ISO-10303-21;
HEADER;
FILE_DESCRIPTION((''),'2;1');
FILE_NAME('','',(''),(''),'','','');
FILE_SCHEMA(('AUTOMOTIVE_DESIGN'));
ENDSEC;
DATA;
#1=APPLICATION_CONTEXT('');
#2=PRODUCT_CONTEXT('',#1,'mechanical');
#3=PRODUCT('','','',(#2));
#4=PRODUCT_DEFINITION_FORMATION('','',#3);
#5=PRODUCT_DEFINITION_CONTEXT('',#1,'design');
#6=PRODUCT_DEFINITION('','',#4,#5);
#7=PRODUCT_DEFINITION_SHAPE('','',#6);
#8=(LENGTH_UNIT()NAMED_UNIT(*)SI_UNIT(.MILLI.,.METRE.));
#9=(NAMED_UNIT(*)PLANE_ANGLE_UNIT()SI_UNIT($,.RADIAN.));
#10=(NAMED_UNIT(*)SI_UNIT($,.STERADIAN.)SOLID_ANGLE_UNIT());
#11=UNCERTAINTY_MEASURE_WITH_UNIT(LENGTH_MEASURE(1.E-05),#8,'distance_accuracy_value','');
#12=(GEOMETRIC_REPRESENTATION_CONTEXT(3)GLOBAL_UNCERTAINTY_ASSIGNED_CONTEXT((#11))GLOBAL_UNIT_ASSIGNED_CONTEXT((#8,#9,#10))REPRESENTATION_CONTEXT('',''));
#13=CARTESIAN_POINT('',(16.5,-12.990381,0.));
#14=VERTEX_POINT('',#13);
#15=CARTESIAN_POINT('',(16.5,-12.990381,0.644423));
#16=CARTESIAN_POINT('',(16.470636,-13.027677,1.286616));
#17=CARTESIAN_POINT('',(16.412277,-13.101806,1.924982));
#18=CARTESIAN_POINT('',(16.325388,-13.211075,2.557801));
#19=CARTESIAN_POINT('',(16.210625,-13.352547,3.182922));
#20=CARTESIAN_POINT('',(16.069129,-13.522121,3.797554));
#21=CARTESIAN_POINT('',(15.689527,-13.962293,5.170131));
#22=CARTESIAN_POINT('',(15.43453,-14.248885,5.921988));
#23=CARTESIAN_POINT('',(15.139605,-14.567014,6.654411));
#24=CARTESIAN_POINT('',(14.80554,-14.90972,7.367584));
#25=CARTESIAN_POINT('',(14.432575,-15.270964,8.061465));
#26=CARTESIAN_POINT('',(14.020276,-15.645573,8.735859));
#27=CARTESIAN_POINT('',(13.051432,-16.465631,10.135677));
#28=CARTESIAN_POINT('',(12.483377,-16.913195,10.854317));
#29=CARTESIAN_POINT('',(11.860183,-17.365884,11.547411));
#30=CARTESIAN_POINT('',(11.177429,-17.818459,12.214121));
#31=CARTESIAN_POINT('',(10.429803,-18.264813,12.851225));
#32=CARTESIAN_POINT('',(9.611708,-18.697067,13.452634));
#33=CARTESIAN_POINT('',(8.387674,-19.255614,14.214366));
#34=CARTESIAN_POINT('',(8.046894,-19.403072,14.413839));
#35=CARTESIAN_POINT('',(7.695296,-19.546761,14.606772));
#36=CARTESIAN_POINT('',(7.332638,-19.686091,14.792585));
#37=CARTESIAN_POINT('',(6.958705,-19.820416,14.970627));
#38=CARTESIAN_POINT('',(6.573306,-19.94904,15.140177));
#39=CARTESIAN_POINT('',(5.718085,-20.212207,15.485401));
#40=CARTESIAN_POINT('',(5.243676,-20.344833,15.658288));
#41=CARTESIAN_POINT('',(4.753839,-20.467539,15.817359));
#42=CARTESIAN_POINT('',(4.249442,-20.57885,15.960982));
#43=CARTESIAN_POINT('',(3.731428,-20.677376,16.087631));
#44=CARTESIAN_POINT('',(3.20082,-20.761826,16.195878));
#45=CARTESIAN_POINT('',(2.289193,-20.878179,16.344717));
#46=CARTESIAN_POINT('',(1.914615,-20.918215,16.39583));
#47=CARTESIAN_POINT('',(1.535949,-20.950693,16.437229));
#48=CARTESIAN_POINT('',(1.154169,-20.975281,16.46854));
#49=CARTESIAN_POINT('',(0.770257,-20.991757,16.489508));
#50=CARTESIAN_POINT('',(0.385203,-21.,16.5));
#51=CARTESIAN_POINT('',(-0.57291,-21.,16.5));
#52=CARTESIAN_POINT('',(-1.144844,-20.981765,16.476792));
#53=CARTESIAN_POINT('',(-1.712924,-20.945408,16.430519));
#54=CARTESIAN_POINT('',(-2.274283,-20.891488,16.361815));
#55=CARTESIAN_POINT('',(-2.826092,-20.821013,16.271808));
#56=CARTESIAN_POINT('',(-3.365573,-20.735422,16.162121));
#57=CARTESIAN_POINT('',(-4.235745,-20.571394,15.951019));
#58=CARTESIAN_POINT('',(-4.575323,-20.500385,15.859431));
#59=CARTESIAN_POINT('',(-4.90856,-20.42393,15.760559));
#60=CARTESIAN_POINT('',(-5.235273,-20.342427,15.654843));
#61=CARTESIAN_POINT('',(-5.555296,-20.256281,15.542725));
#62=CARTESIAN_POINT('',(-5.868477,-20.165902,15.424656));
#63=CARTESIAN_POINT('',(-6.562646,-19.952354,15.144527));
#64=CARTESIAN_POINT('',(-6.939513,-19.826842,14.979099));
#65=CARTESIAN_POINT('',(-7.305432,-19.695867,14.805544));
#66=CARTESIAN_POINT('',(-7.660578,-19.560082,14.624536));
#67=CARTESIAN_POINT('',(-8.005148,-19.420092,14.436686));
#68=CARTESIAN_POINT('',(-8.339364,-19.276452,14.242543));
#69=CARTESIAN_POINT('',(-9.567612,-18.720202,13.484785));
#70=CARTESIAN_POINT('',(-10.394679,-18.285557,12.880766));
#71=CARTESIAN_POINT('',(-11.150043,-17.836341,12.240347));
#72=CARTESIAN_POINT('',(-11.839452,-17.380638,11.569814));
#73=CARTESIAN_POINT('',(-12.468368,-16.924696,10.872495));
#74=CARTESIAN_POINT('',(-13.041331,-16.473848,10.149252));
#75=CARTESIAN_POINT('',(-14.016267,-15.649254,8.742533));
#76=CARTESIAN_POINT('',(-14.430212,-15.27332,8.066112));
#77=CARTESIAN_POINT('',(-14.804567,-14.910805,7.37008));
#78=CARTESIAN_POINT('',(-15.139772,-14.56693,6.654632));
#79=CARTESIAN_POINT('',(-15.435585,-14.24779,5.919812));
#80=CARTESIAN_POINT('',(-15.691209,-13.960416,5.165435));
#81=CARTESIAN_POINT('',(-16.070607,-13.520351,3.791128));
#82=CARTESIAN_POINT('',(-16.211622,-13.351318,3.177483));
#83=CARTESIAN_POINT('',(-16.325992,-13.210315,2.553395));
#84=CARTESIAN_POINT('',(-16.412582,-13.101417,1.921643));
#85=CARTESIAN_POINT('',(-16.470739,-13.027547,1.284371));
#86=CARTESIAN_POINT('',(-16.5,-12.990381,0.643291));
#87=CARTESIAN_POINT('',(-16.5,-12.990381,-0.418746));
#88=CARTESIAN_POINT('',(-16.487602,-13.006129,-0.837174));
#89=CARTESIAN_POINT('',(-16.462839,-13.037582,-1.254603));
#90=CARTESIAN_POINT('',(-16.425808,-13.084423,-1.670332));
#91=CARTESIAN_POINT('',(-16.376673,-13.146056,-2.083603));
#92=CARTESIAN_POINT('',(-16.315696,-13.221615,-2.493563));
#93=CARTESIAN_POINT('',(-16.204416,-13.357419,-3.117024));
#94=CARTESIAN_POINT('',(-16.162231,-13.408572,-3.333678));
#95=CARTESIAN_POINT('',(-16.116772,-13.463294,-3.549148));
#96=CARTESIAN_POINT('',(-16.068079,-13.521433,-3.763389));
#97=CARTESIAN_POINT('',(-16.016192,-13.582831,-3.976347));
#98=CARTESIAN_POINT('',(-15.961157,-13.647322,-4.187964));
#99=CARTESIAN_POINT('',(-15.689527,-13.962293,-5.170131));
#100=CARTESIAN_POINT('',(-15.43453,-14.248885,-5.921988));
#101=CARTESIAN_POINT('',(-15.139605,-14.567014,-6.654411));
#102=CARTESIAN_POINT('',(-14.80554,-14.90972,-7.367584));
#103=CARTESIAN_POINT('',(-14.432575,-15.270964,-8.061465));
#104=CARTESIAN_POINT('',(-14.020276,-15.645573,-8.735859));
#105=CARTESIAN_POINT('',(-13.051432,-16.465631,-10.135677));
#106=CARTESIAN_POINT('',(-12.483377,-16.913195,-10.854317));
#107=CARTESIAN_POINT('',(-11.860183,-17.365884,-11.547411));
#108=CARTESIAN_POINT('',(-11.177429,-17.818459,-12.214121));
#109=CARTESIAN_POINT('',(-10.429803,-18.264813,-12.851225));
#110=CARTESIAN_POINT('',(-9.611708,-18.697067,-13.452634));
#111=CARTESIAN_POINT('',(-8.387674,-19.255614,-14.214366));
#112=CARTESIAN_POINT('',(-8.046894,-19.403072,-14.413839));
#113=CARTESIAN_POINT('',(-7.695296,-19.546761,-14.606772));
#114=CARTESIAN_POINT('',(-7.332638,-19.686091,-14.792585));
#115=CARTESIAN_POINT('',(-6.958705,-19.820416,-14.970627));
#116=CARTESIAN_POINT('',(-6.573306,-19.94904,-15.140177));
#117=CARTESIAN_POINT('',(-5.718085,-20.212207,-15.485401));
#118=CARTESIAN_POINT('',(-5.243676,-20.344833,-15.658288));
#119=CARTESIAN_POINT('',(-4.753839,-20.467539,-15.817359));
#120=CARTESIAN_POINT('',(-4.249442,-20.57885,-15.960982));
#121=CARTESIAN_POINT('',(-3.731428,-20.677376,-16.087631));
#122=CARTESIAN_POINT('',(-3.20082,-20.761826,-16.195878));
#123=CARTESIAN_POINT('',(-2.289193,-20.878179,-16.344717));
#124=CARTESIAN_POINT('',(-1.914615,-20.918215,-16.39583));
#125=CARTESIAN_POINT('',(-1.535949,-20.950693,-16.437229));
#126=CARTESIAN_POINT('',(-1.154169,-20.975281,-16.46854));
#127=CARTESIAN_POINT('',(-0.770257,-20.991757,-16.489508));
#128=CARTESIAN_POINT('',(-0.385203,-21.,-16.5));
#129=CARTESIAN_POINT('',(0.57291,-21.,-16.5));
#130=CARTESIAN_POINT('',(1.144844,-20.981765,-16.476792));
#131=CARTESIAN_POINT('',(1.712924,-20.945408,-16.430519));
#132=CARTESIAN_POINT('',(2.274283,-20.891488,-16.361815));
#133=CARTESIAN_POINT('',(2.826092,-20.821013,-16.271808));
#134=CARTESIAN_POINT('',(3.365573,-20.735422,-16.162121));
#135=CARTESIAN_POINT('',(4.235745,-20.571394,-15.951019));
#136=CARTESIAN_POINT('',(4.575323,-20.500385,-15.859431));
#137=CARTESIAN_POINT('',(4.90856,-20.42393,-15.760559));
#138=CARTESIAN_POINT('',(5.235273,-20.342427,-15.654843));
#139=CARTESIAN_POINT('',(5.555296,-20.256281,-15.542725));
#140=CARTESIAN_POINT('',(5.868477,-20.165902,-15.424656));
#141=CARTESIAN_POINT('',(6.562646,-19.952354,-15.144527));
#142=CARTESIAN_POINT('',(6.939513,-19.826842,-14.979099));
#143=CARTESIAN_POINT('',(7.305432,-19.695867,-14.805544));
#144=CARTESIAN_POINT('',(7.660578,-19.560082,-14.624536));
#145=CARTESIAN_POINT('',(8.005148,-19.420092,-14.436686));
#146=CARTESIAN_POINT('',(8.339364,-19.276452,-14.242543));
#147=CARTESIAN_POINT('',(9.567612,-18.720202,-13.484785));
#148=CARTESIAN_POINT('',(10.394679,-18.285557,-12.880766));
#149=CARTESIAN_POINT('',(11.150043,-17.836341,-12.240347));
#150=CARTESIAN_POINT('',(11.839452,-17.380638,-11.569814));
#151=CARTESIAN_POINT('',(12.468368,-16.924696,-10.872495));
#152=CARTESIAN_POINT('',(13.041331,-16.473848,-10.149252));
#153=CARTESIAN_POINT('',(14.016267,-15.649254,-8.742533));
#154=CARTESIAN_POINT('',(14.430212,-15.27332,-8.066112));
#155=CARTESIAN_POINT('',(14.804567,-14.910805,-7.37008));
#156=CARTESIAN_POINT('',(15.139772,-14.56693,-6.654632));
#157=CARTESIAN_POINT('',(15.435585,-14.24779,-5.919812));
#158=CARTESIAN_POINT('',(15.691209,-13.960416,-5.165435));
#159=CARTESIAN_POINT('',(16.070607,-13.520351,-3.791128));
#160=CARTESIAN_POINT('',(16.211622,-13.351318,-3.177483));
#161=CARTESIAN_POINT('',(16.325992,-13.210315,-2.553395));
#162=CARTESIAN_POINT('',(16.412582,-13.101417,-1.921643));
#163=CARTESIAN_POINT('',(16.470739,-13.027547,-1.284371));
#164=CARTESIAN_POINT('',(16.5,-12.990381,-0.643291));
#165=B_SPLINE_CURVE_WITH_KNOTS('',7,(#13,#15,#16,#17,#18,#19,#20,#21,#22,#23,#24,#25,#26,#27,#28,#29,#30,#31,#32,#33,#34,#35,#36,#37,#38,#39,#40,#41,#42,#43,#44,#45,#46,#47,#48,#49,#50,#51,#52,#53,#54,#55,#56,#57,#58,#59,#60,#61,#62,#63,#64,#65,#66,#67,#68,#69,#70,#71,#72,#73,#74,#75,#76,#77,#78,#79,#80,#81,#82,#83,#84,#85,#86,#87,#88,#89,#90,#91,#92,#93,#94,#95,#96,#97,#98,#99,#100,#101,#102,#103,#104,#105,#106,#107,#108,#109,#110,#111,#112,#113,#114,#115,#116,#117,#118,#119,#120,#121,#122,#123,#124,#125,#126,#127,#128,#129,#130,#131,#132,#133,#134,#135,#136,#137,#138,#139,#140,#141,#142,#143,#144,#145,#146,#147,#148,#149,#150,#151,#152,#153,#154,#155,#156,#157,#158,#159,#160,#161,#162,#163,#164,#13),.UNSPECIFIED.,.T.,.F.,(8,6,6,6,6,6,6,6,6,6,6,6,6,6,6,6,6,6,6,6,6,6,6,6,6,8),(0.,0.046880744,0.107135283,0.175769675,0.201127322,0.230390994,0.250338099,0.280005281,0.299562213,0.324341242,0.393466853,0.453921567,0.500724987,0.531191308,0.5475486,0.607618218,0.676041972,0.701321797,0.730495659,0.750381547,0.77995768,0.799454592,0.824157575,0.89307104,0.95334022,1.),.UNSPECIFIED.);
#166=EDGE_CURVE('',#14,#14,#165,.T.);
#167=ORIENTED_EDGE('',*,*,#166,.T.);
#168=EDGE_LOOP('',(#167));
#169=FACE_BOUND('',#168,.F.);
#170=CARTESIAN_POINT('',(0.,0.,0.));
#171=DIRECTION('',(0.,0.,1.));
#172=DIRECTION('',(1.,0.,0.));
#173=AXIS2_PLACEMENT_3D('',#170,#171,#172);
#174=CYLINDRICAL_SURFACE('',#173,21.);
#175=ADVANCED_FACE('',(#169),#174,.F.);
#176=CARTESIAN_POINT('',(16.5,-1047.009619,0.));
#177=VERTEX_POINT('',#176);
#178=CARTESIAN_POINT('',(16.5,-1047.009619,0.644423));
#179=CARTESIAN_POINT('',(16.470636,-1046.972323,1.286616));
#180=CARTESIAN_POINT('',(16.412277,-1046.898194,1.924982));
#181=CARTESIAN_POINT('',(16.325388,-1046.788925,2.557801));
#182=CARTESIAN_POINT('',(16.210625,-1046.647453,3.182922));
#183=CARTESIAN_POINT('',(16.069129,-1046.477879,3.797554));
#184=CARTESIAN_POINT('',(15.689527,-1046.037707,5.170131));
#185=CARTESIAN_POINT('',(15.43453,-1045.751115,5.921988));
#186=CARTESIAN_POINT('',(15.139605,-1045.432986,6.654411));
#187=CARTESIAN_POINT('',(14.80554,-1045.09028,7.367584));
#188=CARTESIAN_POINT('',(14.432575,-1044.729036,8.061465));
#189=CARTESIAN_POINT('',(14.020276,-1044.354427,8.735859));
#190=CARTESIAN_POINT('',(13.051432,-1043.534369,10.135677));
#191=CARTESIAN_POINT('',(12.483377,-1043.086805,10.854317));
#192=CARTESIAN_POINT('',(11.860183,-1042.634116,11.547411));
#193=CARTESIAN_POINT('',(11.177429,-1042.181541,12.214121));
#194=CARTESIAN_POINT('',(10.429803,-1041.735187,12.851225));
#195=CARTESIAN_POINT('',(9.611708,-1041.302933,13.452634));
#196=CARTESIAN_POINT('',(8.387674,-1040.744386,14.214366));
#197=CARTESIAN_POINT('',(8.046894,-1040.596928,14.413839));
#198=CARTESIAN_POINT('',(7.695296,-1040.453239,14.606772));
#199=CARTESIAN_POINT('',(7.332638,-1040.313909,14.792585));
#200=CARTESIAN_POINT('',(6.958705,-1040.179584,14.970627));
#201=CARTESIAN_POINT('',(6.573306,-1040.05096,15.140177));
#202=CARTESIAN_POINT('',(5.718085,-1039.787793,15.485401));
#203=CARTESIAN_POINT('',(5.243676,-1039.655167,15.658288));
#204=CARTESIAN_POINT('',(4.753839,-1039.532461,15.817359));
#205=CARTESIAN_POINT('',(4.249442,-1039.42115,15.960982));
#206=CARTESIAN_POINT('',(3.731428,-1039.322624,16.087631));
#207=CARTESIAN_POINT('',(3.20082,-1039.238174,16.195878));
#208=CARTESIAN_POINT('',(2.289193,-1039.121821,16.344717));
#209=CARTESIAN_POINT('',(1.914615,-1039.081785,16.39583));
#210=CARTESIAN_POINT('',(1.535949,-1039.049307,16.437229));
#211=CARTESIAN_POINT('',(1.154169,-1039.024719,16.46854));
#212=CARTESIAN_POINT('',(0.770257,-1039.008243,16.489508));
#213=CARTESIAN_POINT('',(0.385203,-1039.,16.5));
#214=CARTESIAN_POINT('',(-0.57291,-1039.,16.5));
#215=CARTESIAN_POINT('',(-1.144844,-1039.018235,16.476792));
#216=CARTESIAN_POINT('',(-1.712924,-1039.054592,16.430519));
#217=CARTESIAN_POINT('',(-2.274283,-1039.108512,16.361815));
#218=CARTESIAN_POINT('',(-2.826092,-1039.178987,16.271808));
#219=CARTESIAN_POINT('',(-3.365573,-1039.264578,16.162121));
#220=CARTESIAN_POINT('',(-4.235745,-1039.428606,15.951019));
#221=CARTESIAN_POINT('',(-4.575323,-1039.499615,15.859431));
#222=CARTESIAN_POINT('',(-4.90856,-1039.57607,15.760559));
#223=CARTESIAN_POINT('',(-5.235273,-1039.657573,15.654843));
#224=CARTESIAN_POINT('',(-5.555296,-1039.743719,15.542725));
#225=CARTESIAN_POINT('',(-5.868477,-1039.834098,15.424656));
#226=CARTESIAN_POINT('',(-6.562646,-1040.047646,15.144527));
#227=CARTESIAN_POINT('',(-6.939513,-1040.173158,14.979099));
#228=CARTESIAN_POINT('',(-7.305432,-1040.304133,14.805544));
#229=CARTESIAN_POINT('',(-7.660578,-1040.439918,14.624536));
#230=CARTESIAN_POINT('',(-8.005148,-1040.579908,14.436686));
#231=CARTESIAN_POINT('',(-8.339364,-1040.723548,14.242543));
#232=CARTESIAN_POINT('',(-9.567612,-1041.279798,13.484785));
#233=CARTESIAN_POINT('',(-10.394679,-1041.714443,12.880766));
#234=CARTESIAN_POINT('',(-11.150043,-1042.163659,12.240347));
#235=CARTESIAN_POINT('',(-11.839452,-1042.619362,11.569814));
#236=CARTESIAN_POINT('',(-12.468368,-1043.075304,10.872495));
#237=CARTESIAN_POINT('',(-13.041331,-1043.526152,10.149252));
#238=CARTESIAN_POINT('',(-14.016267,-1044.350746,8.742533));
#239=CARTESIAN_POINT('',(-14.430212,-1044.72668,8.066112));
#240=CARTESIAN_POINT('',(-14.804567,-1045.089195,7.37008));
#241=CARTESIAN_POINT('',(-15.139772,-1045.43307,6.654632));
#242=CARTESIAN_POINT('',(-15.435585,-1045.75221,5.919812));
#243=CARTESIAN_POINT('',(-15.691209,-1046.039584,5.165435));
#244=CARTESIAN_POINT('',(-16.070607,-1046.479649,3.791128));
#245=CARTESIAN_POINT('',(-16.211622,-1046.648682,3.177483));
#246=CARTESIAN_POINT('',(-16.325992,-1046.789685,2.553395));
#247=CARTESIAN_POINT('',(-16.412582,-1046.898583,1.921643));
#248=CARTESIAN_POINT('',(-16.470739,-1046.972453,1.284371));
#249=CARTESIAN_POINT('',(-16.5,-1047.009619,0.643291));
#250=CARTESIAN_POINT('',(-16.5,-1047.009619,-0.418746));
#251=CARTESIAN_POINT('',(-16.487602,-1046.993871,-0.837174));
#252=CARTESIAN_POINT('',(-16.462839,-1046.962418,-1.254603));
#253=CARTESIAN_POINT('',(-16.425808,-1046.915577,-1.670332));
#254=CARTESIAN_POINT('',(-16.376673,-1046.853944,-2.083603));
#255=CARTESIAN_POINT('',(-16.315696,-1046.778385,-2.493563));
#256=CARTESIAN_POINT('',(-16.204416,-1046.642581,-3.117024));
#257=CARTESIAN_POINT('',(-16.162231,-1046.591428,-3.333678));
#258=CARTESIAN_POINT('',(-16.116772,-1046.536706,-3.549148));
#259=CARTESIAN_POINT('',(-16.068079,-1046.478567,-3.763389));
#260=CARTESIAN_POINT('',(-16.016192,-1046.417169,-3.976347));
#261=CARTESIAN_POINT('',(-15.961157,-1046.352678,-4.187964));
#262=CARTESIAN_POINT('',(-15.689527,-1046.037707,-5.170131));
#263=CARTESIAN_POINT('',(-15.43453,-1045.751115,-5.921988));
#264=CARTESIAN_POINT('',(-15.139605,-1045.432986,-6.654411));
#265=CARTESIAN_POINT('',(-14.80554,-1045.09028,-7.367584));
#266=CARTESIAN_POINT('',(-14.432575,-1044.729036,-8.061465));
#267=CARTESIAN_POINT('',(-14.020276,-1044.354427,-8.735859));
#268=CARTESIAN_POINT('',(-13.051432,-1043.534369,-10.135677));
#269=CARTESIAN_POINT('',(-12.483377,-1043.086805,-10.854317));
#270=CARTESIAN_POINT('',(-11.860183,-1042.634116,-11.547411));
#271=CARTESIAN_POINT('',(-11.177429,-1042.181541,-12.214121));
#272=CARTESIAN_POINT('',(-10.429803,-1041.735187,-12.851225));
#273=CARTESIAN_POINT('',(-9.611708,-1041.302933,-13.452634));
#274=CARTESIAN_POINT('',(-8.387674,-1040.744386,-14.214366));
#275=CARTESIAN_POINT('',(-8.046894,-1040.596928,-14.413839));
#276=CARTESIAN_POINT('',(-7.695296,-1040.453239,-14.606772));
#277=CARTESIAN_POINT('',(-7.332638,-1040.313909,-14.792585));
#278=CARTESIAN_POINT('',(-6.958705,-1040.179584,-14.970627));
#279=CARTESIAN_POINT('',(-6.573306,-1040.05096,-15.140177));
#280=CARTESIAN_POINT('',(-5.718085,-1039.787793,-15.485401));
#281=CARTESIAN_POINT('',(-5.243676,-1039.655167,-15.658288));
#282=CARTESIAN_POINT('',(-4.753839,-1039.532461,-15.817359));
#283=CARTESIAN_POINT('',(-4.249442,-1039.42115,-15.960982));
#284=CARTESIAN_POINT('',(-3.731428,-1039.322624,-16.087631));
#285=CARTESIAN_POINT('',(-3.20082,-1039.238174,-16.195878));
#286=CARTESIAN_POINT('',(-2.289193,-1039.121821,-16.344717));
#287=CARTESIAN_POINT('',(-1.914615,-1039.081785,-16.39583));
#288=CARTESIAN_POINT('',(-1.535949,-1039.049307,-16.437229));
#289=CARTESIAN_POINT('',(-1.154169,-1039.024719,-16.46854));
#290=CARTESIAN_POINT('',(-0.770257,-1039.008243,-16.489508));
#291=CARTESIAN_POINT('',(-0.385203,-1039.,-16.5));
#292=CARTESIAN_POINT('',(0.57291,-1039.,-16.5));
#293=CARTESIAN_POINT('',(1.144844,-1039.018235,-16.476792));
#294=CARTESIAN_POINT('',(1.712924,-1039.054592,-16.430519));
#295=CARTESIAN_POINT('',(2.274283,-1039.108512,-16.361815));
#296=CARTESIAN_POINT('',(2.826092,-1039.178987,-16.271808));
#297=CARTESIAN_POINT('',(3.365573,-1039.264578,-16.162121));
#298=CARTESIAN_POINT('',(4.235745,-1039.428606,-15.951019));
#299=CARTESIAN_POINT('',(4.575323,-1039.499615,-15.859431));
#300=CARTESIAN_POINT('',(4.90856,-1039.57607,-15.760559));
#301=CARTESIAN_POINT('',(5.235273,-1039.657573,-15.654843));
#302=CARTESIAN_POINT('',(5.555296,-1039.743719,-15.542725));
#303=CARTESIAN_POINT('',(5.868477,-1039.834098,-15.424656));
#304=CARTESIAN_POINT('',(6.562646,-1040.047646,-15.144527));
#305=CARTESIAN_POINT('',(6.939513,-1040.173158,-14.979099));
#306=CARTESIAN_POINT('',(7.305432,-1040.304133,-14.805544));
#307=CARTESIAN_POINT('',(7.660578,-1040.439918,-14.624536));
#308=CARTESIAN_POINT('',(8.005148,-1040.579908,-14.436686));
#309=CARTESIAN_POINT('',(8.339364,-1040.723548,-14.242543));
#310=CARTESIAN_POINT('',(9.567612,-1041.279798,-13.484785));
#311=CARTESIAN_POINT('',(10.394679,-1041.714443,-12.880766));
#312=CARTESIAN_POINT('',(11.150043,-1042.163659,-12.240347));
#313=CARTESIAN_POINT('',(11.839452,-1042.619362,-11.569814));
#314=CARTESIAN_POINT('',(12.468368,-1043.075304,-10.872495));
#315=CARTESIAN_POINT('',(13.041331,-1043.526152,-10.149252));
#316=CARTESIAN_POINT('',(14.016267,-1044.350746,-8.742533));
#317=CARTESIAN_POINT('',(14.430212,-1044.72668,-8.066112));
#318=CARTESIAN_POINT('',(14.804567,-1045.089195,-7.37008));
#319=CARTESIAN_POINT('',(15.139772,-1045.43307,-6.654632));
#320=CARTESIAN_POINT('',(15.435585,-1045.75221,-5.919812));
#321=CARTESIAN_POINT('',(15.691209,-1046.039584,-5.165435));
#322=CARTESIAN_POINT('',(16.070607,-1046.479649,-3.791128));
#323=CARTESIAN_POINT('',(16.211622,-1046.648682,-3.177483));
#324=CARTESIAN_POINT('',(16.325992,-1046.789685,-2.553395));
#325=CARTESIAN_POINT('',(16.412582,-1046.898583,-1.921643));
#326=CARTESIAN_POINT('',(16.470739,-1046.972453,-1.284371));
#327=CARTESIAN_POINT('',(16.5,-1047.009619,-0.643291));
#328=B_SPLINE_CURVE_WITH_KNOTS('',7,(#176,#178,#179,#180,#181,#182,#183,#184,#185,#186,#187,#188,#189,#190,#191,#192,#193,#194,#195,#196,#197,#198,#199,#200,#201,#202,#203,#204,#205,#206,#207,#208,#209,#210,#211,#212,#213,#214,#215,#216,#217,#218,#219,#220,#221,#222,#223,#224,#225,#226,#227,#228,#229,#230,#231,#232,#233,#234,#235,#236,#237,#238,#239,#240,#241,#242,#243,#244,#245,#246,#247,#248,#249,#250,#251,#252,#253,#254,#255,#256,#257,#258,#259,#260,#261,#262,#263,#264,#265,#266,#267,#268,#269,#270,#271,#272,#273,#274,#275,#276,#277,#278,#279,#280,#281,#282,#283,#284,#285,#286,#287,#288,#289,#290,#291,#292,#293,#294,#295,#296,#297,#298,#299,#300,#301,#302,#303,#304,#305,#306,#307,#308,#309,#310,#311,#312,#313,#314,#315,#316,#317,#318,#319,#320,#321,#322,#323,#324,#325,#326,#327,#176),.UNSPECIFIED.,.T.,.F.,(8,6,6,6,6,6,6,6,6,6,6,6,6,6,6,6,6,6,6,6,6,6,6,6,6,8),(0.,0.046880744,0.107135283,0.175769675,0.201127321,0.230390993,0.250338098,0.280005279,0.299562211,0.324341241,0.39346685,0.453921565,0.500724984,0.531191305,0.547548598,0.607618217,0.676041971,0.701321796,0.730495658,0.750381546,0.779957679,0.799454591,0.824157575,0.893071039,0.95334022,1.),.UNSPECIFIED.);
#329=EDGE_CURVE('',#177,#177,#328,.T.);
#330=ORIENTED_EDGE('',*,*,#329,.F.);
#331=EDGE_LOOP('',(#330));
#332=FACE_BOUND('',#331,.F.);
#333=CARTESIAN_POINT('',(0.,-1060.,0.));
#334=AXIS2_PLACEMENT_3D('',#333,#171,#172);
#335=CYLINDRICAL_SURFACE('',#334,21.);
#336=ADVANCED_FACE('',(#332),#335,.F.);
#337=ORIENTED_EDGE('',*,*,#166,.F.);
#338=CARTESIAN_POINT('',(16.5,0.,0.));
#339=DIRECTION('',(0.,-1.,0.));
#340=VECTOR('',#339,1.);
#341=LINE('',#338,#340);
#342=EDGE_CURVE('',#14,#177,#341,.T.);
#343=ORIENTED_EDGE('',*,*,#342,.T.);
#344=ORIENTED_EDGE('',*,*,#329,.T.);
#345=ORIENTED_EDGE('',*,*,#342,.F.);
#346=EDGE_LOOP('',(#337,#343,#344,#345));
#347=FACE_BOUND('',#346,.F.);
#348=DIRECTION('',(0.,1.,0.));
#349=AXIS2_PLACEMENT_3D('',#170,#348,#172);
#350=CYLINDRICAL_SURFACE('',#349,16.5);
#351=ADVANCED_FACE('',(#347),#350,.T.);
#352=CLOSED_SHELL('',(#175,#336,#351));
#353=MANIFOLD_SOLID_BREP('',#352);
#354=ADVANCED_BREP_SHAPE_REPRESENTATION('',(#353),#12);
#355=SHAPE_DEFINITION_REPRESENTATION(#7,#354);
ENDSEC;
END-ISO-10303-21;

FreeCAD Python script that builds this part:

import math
import FreeCAD as App
import Part
import Sketcher

V = App.Vector

doc = App.newDocument("Part")
body = doc.addObject("PartDesign::Body", "Body")

sketch1 = body.newObject("Sketcher::SketchObject", "Sketch")
sketch1.AttachmentSupport = (doc.getObject("XZ_Plane"), [""])
sketch1.MapMode = "FlatFace"
sketch1.addGeometry(Part.Circle(V(0, 0, 0), V(0, 0, 1), 16), False)
sketch1.addConstraint([
    Sketcher.Constraint("Coincident", 0, 3, -1, 1),
    Sketcher.Constraint("Diameter", 0, 33.0),
])
pad1 = body.newObject("PartDesign::Pad", "Pad")
pad1.Profile = sketch1
pad1.Length = 1060

sketch2 = body.newObject("Sketcher::SketchObject", "Sketch001")
sketch2.AttachmentSupport = (doc.getObject("XY_Plane"), [""])
sketch2.MapMode = "FlatFace"
sketch2.addGeometry(Part.Circle(V(0, 0, 0), V(0, 0, 1), 21), False)
sketch2.addConstraint([
    Sketcher.Constraint("Coincident", 0, 3, -1, 1),
    Sketcher.Constraint("Diameter", 0, 42.0),
])
pocket1 = body.newObject("PartDesign::Pocket", "Pocket")
pocket1.Profile = sketch2
pocket1.Length = 1000
pocket1.Midplane = True

sketch3 = body.newObject("Sketcher::SketchObject", "Sketch002")
sketch3.AttachmentSupport = (doc.getObject("XY_Plane"), [""])
sketch3.MapMode = "FlatFace"
sketch3.addGeometry([
    Part.LineSegment(V(-21, -1060, 0), V(21, -1060, 0)),
    Part.ArcOfCircle(Part.Circle(V(0, -1060, 0), V(0, 0, 1), 21), math.radians(0), math.radians(180)),
], False)
sketch3.addConstraint([
    Sketcher.Constraint("Coincident", 0, 1, 1, 2),
    Sketcher.Constraint("Coincident", 1, 1, 0, 2),
    Sketcher.Constraint("Horizontal", 0),
    Sketcher.Constraint("PointOnObject", 1, 3, -2),
    Sketcher.Constraint("Horizontal", 1, 3, 0, 1),
    Sketcher.Constraint("Radius", 1, 21.0),
    Sketcher.Constraint("DistanceY", 1, 3, -1, 1, 1060.0),
])
pocket2 = body.newObject("PartDesign::Pocket", "Pocket001")
pocket2.Profile = sketch3
pocket2.Length = 100
pocket2.Midplane = True

doc.recompute()
